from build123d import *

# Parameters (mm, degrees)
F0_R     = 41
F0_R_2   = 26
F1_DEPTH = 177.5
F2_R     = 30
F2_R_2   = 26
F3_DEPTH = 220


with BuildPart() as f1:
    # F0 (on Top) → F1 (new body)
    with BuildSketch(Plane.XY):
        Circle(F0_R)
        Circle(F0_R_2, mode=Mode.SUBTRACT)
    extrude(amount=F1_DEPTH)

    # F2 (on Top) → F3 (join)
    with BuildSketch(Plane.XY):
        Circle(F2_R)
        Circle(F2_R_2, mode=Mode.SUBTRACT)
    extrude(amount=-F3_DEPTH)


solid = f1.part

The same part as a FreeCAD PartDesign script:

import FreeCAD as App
import Part
import Sketcher

V = App.Vector

doc = App.newDocument("Part")
body = doc.addObject("PartDesign::Body", "Body")

# Sketch on XY plane
sketch1 = body.newObject("Sketcher::SketchObject", "Sketch")
sketch1.AttachmentSupport = (doc.getObject("XY_Plane"), [""])
sketch1.MapMode = "FlatFace"
sketch1.addGeometry(Part.Circle(V(0, 0, 0), V(0, 0, 1), 41), False)
sketch1.addGeometry(Part.Circle(V(0, 0, 0), V(0, 0, 1), 26), False)
sketch1.addConstraint(Sketcher.Constraint("Coincident", 0, 3, -1, 1))
sketch1.addConstraint(Sketcher.Constraint("Coincident", 1, 3, -1, 1))
sketch1.addConstraint(Sketcher.Constraint("Diameter", 0, 82.0))
sketch1.addConstraint(Sketcher.Constraint("Diameter", 1, 52.0))
pad1 = body.newObject("PartDesign::Pad", "Pad")
pad1.Profile = sketch1
pad1.Length = 177.5

# Sketch on XY plane
sketch2 = body.newObject("Sketcher::SketchObject", "Sketch001")
sketch2.AttachmentSupport = (doc.getObject("XY_Plane"), [""])
sketch2.MapMode = "FlatFace"
sketch2.addGeometry(Part.Circle(V(0, 0, 0), V(0, 0, 1), 30), False)
sketch2.addGeometry(Part.Circle(V(0, 0, 0), V(0, 0, 1), 26), False)
sketch2.addConstraint(Sketcher.Constraint("Coincident", 0, 3, -1, 1))
sketch2.addConstraint(Sketcher.Constraint("Coincident", 1, 3, -1, 1))
sketch2.addConstraint(Sketcher.Constraint("Diameter", 0, 60.0))
sketch2.addConstraint(Sketcher.Constraint("Diameter", 1, 52.0))
pad2 = body.newObject("PartDesign::Pad", "Pad001")
pad2.Profile = sketch2
pad2.Length = 220
pad2.Reversed = True

doc.recompute()
